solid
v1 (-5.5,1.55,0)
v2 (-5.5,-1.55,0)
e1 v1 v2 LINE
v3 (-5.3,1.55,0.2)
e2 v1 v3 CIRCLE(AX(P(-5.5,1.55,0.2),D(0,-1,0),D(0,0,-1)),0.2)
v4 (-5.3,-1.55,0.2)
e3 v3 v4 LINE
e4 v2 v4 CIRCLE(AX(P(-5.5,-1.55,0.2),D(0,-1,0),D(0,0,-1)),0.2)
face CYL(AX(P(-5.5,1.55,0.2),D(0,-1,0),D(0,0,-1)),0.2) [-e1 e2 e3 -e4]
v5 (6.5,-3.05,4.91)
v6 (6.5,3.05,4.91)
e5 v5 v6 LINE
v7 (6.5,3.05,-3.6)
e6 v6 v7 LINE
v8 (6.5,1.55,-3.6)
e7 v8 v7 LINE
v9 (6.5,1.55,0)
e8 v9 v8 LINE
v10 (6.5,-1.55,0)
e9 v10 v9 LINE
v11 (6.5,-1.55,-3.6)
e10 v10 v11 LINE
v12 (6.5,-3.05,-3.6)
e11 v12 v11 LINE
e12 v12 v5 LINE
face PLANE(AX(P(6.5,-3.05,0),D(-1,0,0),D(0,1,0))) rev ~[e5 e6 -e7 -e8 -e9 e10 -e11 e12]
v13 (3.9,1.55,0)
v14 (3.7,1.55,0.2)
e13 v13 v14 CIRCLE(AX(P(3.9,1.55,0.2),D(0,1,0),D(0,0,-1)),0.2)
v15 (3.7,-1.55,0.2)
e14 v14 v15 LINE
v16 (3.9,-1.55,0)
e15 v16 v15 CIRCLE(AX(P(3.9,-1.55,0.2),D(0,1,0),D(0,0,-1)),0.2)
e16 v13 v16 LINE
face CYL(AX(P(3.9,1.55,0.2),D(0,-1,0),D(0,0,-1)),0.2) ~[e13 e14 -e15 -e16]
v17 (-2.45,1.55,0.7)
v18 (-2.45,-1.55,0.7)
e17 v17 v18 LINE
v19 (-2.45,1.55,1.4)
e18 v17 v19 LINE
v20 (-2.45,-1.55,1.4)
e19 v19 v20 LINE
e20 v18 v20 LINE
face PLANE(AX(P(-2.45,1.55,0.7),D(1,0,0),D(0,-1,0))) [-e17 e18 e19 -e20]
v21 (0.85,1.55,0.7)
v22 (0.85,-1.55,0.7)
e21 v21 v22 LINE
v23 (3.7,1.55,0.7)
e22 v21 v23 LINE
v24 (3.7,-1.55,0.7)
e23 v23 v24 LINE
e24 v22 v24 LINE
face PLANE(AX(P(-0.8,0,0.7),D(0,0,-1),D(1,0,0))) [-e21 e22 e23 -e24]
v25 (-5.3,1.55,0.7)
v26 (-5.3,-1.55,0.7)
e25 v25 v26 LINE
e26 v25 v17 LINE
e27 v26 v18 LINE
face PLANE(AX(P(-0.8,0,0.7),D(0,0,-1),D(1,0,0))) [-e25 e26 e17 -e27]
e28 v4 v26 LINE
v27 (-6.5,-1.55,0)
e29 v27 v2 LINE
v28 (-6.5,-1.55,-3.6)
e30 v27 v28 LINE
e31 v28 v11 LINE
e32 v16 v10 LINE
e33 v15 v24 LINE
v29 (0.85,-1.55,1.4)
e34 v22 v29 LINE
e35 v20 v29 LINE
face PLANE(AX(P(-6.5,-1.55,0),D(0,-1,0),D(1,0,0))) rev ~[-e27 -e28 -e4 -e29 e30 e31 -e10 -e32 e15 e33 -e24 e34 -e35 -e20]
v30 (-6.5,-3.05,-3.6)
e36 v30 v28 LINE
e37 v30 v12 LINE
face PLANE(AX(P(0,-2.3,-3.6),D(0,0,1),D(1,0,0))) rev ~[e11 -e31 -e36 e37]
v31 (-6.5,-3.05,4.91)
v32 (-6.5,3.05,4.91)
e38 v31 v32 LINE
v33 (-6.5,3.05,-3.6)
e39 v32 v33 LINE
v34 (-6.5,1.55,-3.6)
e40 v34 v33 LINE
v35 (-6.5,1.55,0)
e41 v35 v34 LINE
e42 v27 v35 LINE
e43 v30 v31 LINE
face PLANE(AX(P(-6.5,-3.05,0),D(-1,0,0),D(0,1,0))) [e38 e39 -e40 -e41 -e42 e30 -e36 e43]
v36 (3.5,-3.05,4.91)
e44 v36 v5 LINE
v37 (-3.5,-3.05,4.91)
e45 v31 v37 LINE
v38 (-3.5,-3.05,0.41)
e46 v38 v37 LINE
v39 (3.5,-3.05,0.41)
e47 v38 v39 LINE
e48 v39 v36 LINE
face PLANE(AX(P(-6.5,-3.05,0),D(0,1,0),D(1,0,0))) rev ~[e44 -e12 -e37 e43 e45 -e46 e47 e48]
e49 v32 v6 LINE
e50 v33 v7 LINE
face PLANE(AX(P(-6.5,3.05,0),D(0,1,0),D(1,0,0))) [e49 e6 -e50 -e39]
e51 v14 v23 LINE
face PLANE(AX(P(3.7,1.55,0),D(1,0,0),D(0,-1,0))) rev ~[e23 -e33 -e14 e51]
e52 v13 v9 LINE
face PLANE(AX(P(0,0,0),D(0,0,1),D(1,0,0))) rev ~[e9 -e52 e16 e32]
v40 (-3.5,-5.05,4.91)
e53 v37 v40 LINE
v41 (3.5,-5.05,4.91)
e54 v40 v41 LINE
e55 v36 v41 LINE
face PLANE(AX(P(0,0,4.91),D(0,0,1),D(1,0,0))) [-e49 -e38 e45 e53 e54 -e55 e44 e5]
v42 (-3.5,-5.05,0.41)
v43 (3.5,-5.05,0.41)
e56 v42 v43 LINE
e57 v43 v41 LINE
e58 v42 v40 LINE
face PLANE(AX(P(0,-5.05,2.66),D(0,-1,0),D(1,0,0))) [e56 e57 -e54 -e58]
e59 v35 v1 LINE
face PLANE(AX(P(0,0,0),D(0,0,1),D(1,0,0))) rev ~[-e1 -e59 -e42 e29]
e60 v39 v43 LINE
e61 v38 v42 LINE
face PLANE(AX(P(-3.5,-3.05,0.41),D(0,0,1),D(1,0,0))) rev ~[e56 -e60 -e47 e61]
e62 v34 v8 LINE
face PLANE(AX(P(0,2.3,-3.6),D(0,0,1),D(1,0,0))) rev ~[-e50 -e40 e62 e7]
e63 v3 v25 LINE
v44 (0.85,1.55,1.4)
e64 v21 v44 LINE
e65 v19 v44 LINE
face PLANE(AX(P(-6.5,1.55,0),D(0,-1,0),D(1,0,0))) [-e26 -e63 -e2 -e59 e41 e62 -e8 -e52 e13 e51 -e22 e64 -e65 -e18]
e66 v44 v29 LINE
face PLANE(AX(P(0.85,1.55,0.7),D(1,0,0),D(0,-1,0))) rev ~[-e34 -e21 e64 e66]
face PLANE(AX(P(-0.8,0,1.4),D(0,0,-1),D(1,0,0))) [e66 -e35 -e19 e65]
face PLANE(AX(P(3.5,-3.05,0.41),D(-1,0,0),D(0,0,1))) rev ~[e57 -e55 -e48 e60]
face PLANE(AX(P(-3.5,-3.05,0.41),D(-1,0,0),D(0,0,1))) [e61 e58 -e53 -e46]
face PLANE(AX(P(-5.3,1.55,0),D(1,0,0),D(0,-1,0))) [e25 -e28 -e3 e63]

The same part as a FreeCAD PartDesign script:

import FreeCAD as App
import Part
import Sketcher

V = App.Vector


def edges_at(feature, points):
    """Names of the edges that pass closest to the given points."""
    edges = feature.Shape.Edges
    near = lambda p: min(range(len(edges)), key=lambda i: edges[i].distToShape(Part.Vertex(*p))[0])
    return sorted({f"Edge{near(p) + 1}" for p in points})

doc = App.newDocument("Part")
body = doc.addObject("PartDesign::Body", "Body")
body.AllowCompound = True

sketch1 = body.newObject("Sketcher::SketchObject", "Sketch")
sketch1.AttachmentSupport = (doc.getObject("XY_Plane"), [""])
sketch1.MapMode = "FlatFace"
sketch1.addGeometry(Part.LineSegment(V(-6.5, 3, 0), V(-6.5, 1.6, 0)), False)
sketch1.addGeometry(Part.LineSegment(V(-6.5, 1.6, 0), V(6.5, 1.6, 0)), False)
sketch1.addGeometry(Part.LineSegment(V(6.5, 1.6, 0), V(6.5, 3, 0)), False)
sketch1.addGeometry(Part.LineSegment(V(6.5, 3, 0), V(-6.5, 3, 0)), False)
sketch1.addGeometry(Part.LineSegment(V(-6.5, -1.6, 0), V(-6.5, -3, 0)), False)
sketch1.addGeometry(Part.LineSegment(V(-6.5, -3, 0), V(6.5, -3, 0)), False)
sketch1.addGeometry(Part.LineSegment(V(6.5, -3, 0), V(6.5, -1.6, 0)), False)
sketch1.addGeometry(Part.LineSegment(V(6.5, -1.6, 0), V(-6.5, -1.6, 0)), False)
sketch1.addConstraint(Sketcher.Constraint("Coincident", 0, 2, 1, 1))
sketch1.addConstraint(Sketcher.Constraint("Coincident", 1, 2, 2, 1))
sketch1.addConstraint(Sketcher.Constraint("Coincident", 2, 2, 3, 1))
sketch1.addConstraint(Sketcher.Constraint("Coincident", 3, 2, 0, 1))
sketch1.addConstraint(Sketcher.Constraint("Coincident", 4, 2, 5, 1))
sketch1.addConstraint(Sketcher.Constraint("Coincident", 5, 2, 6, 1))
sketch1.addConstraint(Sketcher.Constraint("Coincident", 6, 2, 7, 1))
sketch1.addConstraint(Sketcher.Constraint("Coincident", 7, 2, 4, 1))
sketch1.addConstraint(Sketcher.Constraint("Vertical", 0))
sketch1.addConstraint(Sketcher.Constraint("Horizontal", 1))
sketch1.addConstraint(Sketcher.Constraint("Vertical", 2))
sketch1.addConstraint(Sketcher.Constraint("Horizontal", 3))
sketch1.addConstraint(Sketcher.Constraint("Vertical", 4))
sketch1.addConstraint(Sketcher.Constraint("Horizontal", 5))
sketch1.addConstraint(Sketcher.Constraint("Vertical", 6))
sketch1.addConstraint(Sketcher.Constraint("Horizontal", 7))
sketch1.addConstraint(Sketcher.Constraint("Symmetric", 2, 2, 4, 2, -1, 1))
sketch1.addConstraint(Sketcher.Constraint("Symmetric", 0, 2, 6, 2, -1, 1))
sketch1.addConstraint(Sketcher.Constraint("Vertical", 3, 2, 4, 2))
sketch1.addConstraint(Sketcher.Constraint("DistanceX", 1, 1, 1, 2, 13.0))
sketch1.addConstraint(Sketcher.Constraint("DistanceY", 0, 2, 0, 1, 1.5))
sketch1.addConstraint(Sketcher.Constraint("DistanceY", 4, 2, 0, 2, 4.6))
pad1 = body.newObject("PartDesign::Pad", "Pad")
pad1.Profile = sketch1
pad1.Length = 3.6
pad1.Reversed = True

sketch2 = body.newObject("Sketcher::SketchObject", "Sketch001")
sketch2.AttachmentSupport = (doc.getObject("XY_Plane"), [""])
sketch2.MapMode = "FlatFace"
sketch2.addGeometry(Part.LineSegment(V(-6, 3, 0), V(-6, -3, 0)), False)
sketch2.addGeometry(Part.LineSegment(V(-6, -3, 0), V(6, -3, 0)), False)
sketch2.addGeometry(Part.LineSegment(V(6, -3, 0), V(6, 3, 0)), False)
sketch2.addGeometry(Part.LineSegment(V(6, 3, 0), V(-6, 3, 0)), False)
sketch2.addConstraint(Sketcher.Constraint("Coincident", 0, 2, 1, 1))
sketch2.addConstraint(Sketcher.Constraint("Coincident", 1, 2, 2, 1))
sketch2.addConstraint(Sketcher.Constraint("Coincident", 2, 2, 3, 1))
sketch2.addConstraint(Sketcher.Constraint("Coincident", 3, 2, 0, 1))
sketch2.addConstraint(Sketcher.Constraint("Vertical", 0))
sketch2.addConstraint(Sketcher.Constraint("Horizontal", 1))
sketch2.addConstraint(Sketcher.Constraint("Vertical", 2))
sketch2.addConstraint(Sketcher.Constraint("Horizontal", 3))
sketch2.addConstraint(Sketcher.Constraint("Symmetric", 0, 2, 2, 2, -1, 1))
sketch2.addConstraint(Sketcher.Constraint("DistanceX", 1, 1, 1, 2, 13.0))
sketch2.addConstraint(Sketcher.Constraint("DistanceY", 0, 2, 0, 1, 6.1))
pad2 = body.newObject("PartDesign::Pad", "Pad001")
pad2.Profile = sketch2
pad2.Length = 4.91

sketch3 = body.newObject("Sketcher::SketchObject", "Sketch002")
sketch3.AttachmentSupport = (doc.getObject("XY_Plane"), [""])
sketch3.MapMode = "FlatFace"
sketch3.addGeometry(Part.LineSegment(V(-5.3, -1.6, 0), V(-5.3, 1.6, 0)), False)
sketch3.addGeometry(Part.LineSegment(V(-5.3, 1.6, 0), V(3.7, 1.6, 0)), False)
sketch3.addGeometry(Part.LineSegment(V(3.7, 1.6, 0), V(3.7, -1.6, 0)), False)
sketch3.addGeometry(Part.LineSegment(V(3.7, -1.6, 0), V(-5.3, -1.6, 0)), False)
sketch3.addConstraint(Sketcher.Constraint("Coincident", 0, 2, 1, 1))
sketch3.addConstraint(Sketcher.Constraint("Coincident", 1, 2, 2, 1))
sketch3.addConstraint(Sketcher.Constraint("Coincident", 2, 2, 3, 1))
sketch3.addConstraint(Sketcher.Constraint("Coincident", 3, 2, 0, 1))
sketch3.addConstraint(Sketcher.Constraint("Vertical", 0))
sketch3.addConstraint(Sketcher.Constraint("Horizontal", 1))
sketch3.addConstraint(Sketcher.Constraint("Vertical", 2))
sketch3.addConstraint(Sketcher.Constraint("Horizontal", 3))
sketch3.addConstraint(Sketcher.Constraint("DistanceX", 1, 1, 1, 2, 9.0))
sketch3.addConstraint(Sketcher.Constraint("DistanceY", 0, 1, 0, 2, 3.1))
sketch3.addConstraint(Sketcher.Constraint("DistanceX", 0, 2, -1, 1, 5.3))
sketch3.addConstraint(Sketcher.Constraint("DistanceY", -1, 1, 0, 2, 1.55))
pocket1 = body.newObject("PartDesign::Pocket", "Pocket")
pocket1.Profile = sketch3
pocket1.Length = 0.7
pocket1.Reversed = True

sketch4 = body.newObject("Sketcher::SketchObject", "Sketch003")
sketch4.AttachmentSupport = (doc.getObject("XY_Plane"), [""])
sketch4.MapMode = "FlatFace"
sketch4.AttachmentOffset = App.Placement(V(0, 0, 0.7), App.Rotation())
sketch4.addGeometry(Part.LineSegment(V(-2.5, -1.6, 0), V(-2.5, 1.6, 0)), False)
sketch4.addGeometry(Part.LineSegment(V(-2.5, 1.6, 0), V(0.8, 1.6, 0)), False)
sketch4.addGeometry(Part.LineSegment(V(0.8, 1.6, 0), V(0.8, -1.6, 0)), False)
sketch4.addGeometry(Part.LineSegment(V(0.8, -1.6, 0), V(-2.5, -1.6, 0)), False)
sketch4.addConstraint(Sketcher.Constraint("Coincident", 0, 2, 1, 1))
sketch4.addConstraint(Sketcher.Constraint("Coincident", 1, 2, 2, 1))
sketch4.addConstraint(Sketcher.Constraint("Coincident", 2, 2, 3, 1))
sketch4.addConstraint(Sketcher.Constraint("Coincident", 3, 2, 0, 1))
sketch4.addConstraint(Sketcher.Constraint("Vertical", 0))
sketch4.addConstraint(Sketcher.Constraint("Horizontal", 1))
sketch4.addConstraint(Sketcher.Constraint("Vertical", 2))
sketch4.addConstraint(Sketcher.Constraint("Horizontal", 3))
sketch4.addConstraint(Sketcher.Constraint("DistanceX", 1, 1, 1, 2, 3.3))
sketch4.addConstraint(Sketcher.Constraint("DistanceY", 0, 1, 0, 2, 3.1))
sketch4.addConstraint(Sketcher.Constraint("DistanceX", 0, 2, -1, 1, 2.45))
sketch4.addConstraint(Sketcher.Constraint("DistanceY", -1, 1, 0, 2, 1.55))
pocket2 = body.newObject("PartDesign::Pocket", "Pocket001")
pocket2.Profile = sketch4
pocket2.Length = 0.7
pocket2.Reversed = True

sketch5 = body.newObject("Sketcher::SketchObject", "Sketch004")
sketch5.AttachmentSupport = (doc.getObject("XZ_Plane"), [""])
sketch5.MapMode = "FlatFace"
sketch5.AttachmentOffset = App.Placement(V(0, 0, 3.05), App.Rotation())
sketch5.addGeometry(Part.LineSegment(V(-3.5, 4.9, 0), V(-3.5, 0.4, 0)), False)
sketch5.addGeometry(Part.LineSegment(V(-3.5, 0.4, 0), V(3.5, 0.4, 0)), False)
sketch5.addGeometry(Part.LineSegment(V(3.5, 0.4, 0), V(3.5, 4.9, 0)), False)
sketch5.addGeometry(Part.LineSegment(V(3.5, 4.9, 0), V(-3.5, 4.9, 0)), False)
sketch5.addConstraint(Sketcher.Constraint("Coincident", 0, 2, 1, 1))
sketch5.addConstraint(Sketcher.Constraint("Coincident", 1, 2, 2, 1))
sketch5.addConstraint(Sketcher.Constraint("Coincident", 2, 2, 3, 1))
sketch5.addConstraint(Sketcher.Constraint("Coincident", 3, 2, 0, 1))
sketch5.addConstraint(Sketcher.Constraint("Vertical", 0))
sketch5.addConstraint(Sketcher.Constraint("Horizontal", 1))
sketch5.addConstraint(Sketcher.Constraint("Vertical", 2))
sketch5.addConstraint(Sketcher.Constraint("Horizontal", 3))
sketch5.addConstraint(Sketcher.Constraint("DistanceX", 1, 1, 1, 2, 7.0))
sketch5.addConstraint(Sketcher.Constraint("DistanceY", 0, 2, 0, 1, 4.5))
sketch5.addConstraint(Sketcher.Constraint("DistanceX", 0, 2, -1, 1, 3.5))
sketch5.addConstraint(Sketcher.Constraint("DistanceY", -1, 1, 0, 2, 0.41))
pad3 = body.newObject("PartDesign::Pad", "Pad002")
pad3.Profile = sketch5
pad3.Length = 2
doc.recompute()

fillet = body.newObject("PartDesign::Fillet", "Fillet")
fillet.Base = (pad3, edges_at(pad3, [(-5.3, 0, 0), (3.7, 0, 0)]))
fillet.Radius = 0.2

doc.recompute()
